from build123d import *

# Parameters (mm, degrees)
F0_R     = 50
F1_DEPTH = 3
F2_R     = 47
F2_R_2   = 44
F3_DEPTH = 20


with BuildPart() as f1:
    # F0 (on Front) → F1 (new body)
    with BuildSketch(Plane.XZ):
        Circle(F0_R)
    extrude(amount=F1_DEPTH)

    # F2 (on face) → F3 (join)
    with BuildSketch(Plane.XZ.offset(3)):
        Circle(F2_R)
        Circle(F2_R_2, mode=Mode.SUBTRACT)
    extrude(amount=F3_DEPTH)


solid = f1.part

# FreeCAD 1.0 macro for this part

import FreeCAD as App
import Part
import Sketcher

V = App.Vector

doc = App.newDocument("Part")
body = doc.addObject("PartDesign::Body", "Body")

# Sketch on XZ plane
sketch1 = doc.addObject("Sketcher::SketchObject", "Sketch")
body.addObject(sketch1)
sketch1.AttachmentSupport = (doc.XZ_Plane, [""])
sketch1.MapMode = "FlatFace"
sketch1.addGeometry(Part.Circle(V(0, 0, 0), V(0, 0, 1), 50), False)
sketch1.addConstraint(Sketcher.Constraint("Coincident", 0, 3, -1, 1))
sketch1.addConstraint(Sketcher.Constraint("Diameter", 0, 100.0))
pad1 = doc.addObject("PartDesign::Pad", "Pad")
body.addObject(pad1)
pad1.Profile = sketch1
pad1.Length = 3

# Sketch on XZ plane
sketch2 = doc.addObject("Sketcher::SketchObject", "Sketch001")
body.addObject(sketch2)
sketch2.AttachmentSupport = (doc.XZ_Plane, [""])
sketch2.MapMode = "FlatFace"
sketch2.AttachmentOffset = App.Placement(V(0, 0, 3), App.Rotation())
sketch2.addGeometry(Part.Circle(V(0, 0, 0), V(0, 0, 1), 47), False)
sketch2.addGeometry(Part.Circle(V(0, 0, 0), V(0, 0, 1), 44), False)
sketch2.addConstraint(Sketcher.Constraint("Coincident", 0, 3, -1, 1))
sketch2.addConstraint(Sketcher.Constraint("Coincident", 1, 3, -1, 1))
sketch2.addConstraint(Sketcher.Constraint("Diameter", 0, 94.0))
sketch2.addConstraint(Sketcher.Constraint("Diameter", 1, 88.0))
pad2 = doc.addObject("PartDesign::Pad", "Pad001")
body.addObject(pad2)
pad2.Profile = sketch2
pad2.Length = 20

doc.recompute()
